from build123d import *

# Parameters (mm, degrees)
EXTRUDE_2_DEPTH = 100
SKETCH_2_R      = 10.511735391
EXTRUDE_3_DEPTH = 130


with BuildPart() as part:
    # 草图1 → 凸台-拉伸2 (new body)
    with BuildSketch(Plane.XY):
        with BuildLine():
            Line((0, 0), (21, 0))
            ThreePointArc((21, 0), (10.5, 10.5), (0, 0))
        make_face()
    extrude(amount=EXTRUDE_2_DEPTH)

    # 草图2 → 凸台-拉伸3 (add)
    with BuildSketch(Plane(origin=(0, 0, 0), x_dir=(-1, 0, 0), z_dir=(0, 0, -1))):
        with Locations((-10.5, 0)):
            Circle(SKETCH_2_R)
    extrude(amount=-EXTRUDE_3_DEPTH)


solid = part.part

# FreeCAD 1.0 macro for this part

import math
import FreeCAD as App
import Part
import Sketcher

V = App.Vector

doc = App.newDocument("Part")
body = doc.addObject("PartDesign::Body", "Body")

# Sketch on XY plane
sketch1 = doc.addObject("Sketcher::SketchObject", "Sketch")
body.addObject(sketch1)
sketch1.AttachmentSupport = (doc.XY_Plane, [""])
sketch1.MapMode = "FlatFace"
sketch1.addGeometry(Part.LineSegment(V(0, 0, 0), V(21, 0, 0)), False)
sketch1.addGeometry(Part.ArcOfCircle(Part.Circle(V(10, 0, 0), V(0, 0, 1), 10), math.radians(0), math.radians(180)), False)
sketch1.addConstraint(Sketcher.Constraint("Coincident", 0, 1, 1, 2))
sketch1.addConstraint(Sketcher.Constraint("Coincident", 1, 1, 0, 2))
sketch1.addConstraint(Sketcher.Constraint("Horizontal", 0))
sketch1.addConstraint(Sketcher.Constraint("Coincident", 0, 1, -1, 1))
sketch1.addConstraint(Sketcher.Constraint("PointOnObject", 1, 3, -1))
sketch1.addConstraint(Sketcher.Constraint("Radius", 1, 10.5))
pad1 = doc.addObject("PartDesign::Pad", "Pad")
body.addObject(pad1)
pad1.Profile = sketch1
pad1.Length = 100

# Sketch on XY plane
sketch2 = doc.addObject("Sketcher::SketchObject", "Sketch001")
body.addObject(sketch2)
sketch2.AttachmentSupport = (doc.XY_Plane, [""])
sketch2.MapMode = "FlatFace"
sketch2.addGeometry(Part.Circle(V(10, 0, 0), V(0, 0, 1), 11), False)
sketch2.addConstraint(Sketcher.Constraint("PointOnObject", 0, 3, -1))
sketch2.addConstraint(Sketcher.Constraint("DistanceX", -1, 1, 0, 3, 10.5))
sketch2.addConstraint(Sketcher.Constraint("Diameter", 0, 21.023471))
pad2 = doc.addObject("PartDesign::Pad", "Pad001")
body.addObject(pad2)
pad2.Profile = sketch2
pad2.Length = 130

doc.recompute()
